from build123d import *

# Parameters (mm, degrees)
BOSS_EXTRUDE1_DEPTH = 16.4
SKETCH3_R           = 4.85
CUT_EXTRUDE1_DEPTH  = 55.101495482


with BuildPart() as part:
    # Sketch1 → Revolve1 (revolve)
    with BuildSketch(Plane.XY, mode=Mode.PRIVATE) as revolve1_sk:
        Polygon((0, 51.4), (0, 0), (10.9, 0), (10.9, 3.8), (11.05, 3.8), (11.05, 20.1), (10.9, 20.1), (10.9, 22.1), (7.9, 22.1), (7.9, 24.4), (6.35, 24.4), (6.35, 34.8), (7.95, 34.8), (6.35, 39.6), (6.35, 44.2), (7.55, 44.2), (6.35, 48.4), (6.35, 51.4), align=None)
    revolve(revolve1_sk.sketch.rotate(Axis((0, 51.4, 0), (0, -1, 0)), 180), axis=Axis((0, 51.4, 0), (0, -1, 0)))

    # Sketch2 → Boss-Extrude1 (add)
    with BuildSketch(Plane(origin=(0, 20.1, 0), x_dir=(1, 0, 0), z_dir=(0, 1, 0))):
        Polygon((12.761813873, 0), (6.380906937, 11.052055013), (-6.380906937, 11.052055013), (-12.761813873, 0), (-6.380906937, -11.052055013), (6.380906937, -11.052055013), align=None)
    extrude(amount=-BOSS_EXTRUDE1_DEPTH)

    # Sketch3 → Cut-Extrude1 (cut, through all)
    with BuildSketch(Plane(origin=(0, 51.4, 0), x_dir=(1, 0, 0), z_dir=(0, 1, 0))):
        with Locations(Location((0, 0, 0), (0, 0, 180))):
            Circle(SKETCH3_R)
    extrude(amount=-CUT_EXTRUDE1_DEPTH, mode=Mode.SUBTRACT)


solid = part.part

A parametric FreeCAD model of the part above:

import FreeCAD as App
import Part
import Sketcher
Q = App.Units.Quantity

doc = App.newDocument("Part")
body = doc.addObject("PartDesign::Body", "Body")

sketch1 = body.newObject("Sketcher::SketchObject", "Sketch")
sketch1.AttachmentSupport = (doc.getObject("XY_Plane"), [""])
sketch1.MapMode = "FlatFace"
sketch1.addGeometry(Part.LineSegment(App.Vector(0, 51.4, 0), App.Vector(0, 0, 0)), False)
sketch1.addGeometry(Part.LineSegment(App.Vector(0, 0, 0), App.Vector(10.9, 0, 0)), False)
sketch1.addGeometry(Part.LineSegment(App.Vector(10.9, 0, 0), App.Vector(10.9, 3.8, 0)), False)
sketch1.addGeometry(Part.LineSegment(App.Vector(10.9, 3.8, 0), App.Vector(11.05, 3.8, 0)), False)
sketch1.addGeometry(Part.LineSegment(App.Vector(11.05, 3.8, 0), App.Vector(11.05, 20.1, 0)), False)
sketch1.addGeometry(Part.LineSegment(App.Vector(11.05, 20.1, 0), App.Vector(10.9, 20.1, 0)), False)
sketch1.addGeometry(Part.LineSegment(App.Vector(10.9, 20.1, 0), App.Vector(10.9, 22.1, 0)), False)
sketch1.addGeometry(Part.LineSegment(App.Vector(10.9, 22.1, 0), App.Vector(7.9, 22.1, 0)), False)
sketch1.addGeometry(Part.LineSegment(App.Vector(7.9, 22.1, 0), App.Vector(7.9, 24.4, 0)), False)
sketch1.addGeometry(Part.LineSegment(App.Vector(7.9, 24.4, 0), App.Vector(6.35, 24.4, 0)), False)
sketch1.addGeometry(Part.LineSegment(App.Vector(6.35, 24.4, 0), App.Vector(6.35, 34.8, 0)), False)
sketch1.addGeometry(Part.LineSegment(App.Vector(6.35, 34.8, 0), App.Vector(7.95, 34.8, 0)), False)
sketch1.addGeometry(Part.LineSegment(App.Vector(7.95, 34.8, 0), App.Vector(6.35, 39.6, 0)), False)
sketch1.addGeometry(Part.LineSegment(App.Vector(6.35, 39.6, 0), App.Vector(6.35, 44.2, 0)), False)
sketch1.addGeometry(Part.LineSegment(App.Vector(6.35, 44.2, 0), App.Vector(7.55, 44.2, 0)), False)
sketch1.addGeometry(Part.LineSegment(App.Vector(7.55, 44.2, 0), App.Vector(6.35, 48.4, 0)), False)
sketch1.addGeometry(Part.LineSegment(App.Vector(6.35, 48.4, 0), App.Vector(6.35, 51.4, 0)), False)
sketch1.addGeometry(Part.LineSegment(App.Vector(6.35, 51.4, 0), App.Vector(0, 51.4, 0)), False)
sketch1.addConstraint(Sketcher.Constraint("Coincident", 0, 2, 1, 1))
sketch1.addConstraint(Sketcher.Constraint("Coincident", 1, 2, 2, 1))
sketch1.addConstraint(Sketcher.Constraint("Coincident", 2, 2, 3, 1))
sketch1.addConstraint(Sketcher.Constraint("Coincident", 3, 2, 4, 1))
sketch1.addConstraint(Sketcher.Constraint("Coincident", 4, 2, 5, 1))
sketch1.addConstraint(Sketcher.Constraint("Coincident", 5, 2, 6, 1))
sketch1.addConstraint(Sketcher.Constraint("Coincident", 6, 2, 7, 1))
sketch1.addConstraint(Sketcher.Constraint("Coincident", 7, 2, 8, 1))
sketch1.addConstraint(Sketcher.Constraint("Coincident", 8, 2, 9, 1))
sketch1.addConstraint(Sketcher.Constraint("Coincident", 9, 2, 10, 1))
sketch1.addConstraint(Sketcher.Constraint("Coincident", 10, 2, 11, 1))
sketch1.addConstraint(Sketcher.Constraint("Coincident", 11, 2, 12, 1))
sketch1.addConstraint(Sketcher.Constraint("Coincident", 12, 2, 13, 1))
sketch1.addConstraint(Sketcher.Constraint("Coincident", 13, 2, 14, 1))
sketch1.addConstraint(Sketcher.Constraint("Coincident", 14, 2, 15, 1))
sketch1.addConstraint(Sketcher.Constraint("Coincident", 15, 2, 16, 1))
sketch1.addConstraint(Sketcher.Constraint("Coincident", 16, 2, 17, 1))
sketch1.addConstraint(Sketcher.Constraint("Coincident", 17, 2, 0, 1))
sketch1.addConstraint(Sketcher.Constraint("Vertical", 0))
sketch1.addConstraint(Sketcher.Constraint("Horizontal", 1))
sketch1.addConstraint(Sketcher.Constraint("Vertical", 2))
sketch1.addConstraint(Sketcher.Constraint("Horizontal", 3))
sketch1.addConstraint(Sketcher.Constraint("Vertical", 4))
sketch1.addConstraint(Sketcher.Constraint("Horizontal", 5))
sketch1.addConstraint(Sketcher.Constraint("Vertical", 6))
sketch1.addConstraint(Sketcher.Constraint("Horizontal", 7))
sketch1.addConstraint(Sketcher.Constraint("Vertical", 8))
sketch1.addConstraint(Sketcher.Constraint("Horizontal", 9))
sketch1.addConstraint(Sketcher.Constraint("Vertical", 10))
sketch1.addConstraint(Sketcher.Constraint("Horizontal", 11))
sketch1.addConstraint(Sketcher.Constraint("Vertical", 13))
sketch1.addConstraint(Sketcher.Constraint("Horizontal", 14))
sketch1.addConstraint(Sketcher.Constraint("Vertical", 16))
sketch1.addConstraint(Sketcher.Constraint("Horizontal", 17))
sketch1.addConstraint(Sketcher.Constraint("Coincident", 0, 2, -1, 1))
sketch1.addConstraint(Sketcher.Constraint("Vertical", 2, 2, 5, 2))
sketch1.addConstraint(Sketcher.Constraint("Vertical", 10, 2, 12, 2))
sketch1.addConstraint(Sketcher.Constraint("Vertical", 13, 2, 15, 2))
sketch1.addConstraint(Sketcher.Constraint("Equal", 7, 16))
sketch1.addConstraint(Sketcher.Constraint("DistanceX", 7, 2, 7, 1, Q("3 mm")))
sketch1.addConstraint(Sketcher.Constraint("DistanceY", 6, 1, 6, 2, Q("2 mm")))
sketch1.addConstraint(Sketcher.Constraint("DistanceX", 1, 1, 1, 2, Q("10.9 mm")))
sketch1.addConstraint(Sketcher.Constraint("DistanceX", 11, 1, 11, 2, Q("1.6 mm")))
sketch1.addConstraint(Sketcher.Constraint("DistanceX", 14, 1, 14, 2, Q("1.2 mm")))
sketch1.addConstraint(Sketcher.Constraint("DistanceY", 0, 2, 0, 1, Q("51.4 mm")))
sketch1.addConstraint(Sketcher.Constraint("DistanceY", 2, 1, 2, 2, Q("3.8 mm")))
sketch1.addConstraint(Sketcher.Constraint("DistanceY", 4, 1, 4, 2, Q("16.3 mm")))
sketch1.addConstraint(Sketcher.Constraint("DistanceY", 8, 1, 8, 2, Q("2.3 mm")))
sketch1.addConstraint(Sketcher.Constraint("DistanceY", 10, 1, 10, 2, Q("10.4 mm")))
sketch1.addConstraint(Sketcher.Constraint("DistanceY", 13, 1, 13, 2, Q("4.6 mm")))
sketch1.addConstraint(Sketcher.Constraint("DistanceX", 3, 1, 3, 2, Q("0.15 mm")))
sketch1.addConstraint(Sketcher.Constraint("DistanceX", 9, 2, 9, 1, Q("1.55 mm")))
sketch1.addConstraint(Sketcher.Constraint("DistanceY", -1, 1, 12, 2, Q("39.6 mm")))
revolution = body.newObject("PartDesign::Revolution", "Revolution")
revolution.Profile = sketch1
revolution.ReferenceAxis = (sketch1, ["V_Axis"])
revolution.Angle = 360

sketch2 = body.newObject("Sketcher::SketchObject", "Sketch001")
sketch2.AttachmentSupport = (doc.getObject("XZ_Plane"), [""])
sketch2.MapMode = "FlatFace"
sketch2.AttachmentOffset = App.Placement(App.Vector(0, 0, -20.1), App.Rotation())
sketch2.addGeometry(Part.LineSegment(App.Vector(12.761814, 0, 0), App.Vector(6.380907, -11.052055, 0)), False)
sketch2.addGeometry(Part.LineSegment(App.Vector(6.380907, -11.052055, 0), App.Vector(-6.380907, -11.052055, 0)), False)
sketch2.addGeometry(Part.LineSegment(App.Vector(-6.380907, -11.052055, 0), App.Vector(-12.761814, 0, 0)), False)
sketch2.addGeometry(Part.LineSegment(App.Vector(-12.761814, 0, 0), App.Vector(-6.380907, 11.052055, 0)), False)
sketch2.addGeometry(Part.LineSegment(App.Vector(-6.380907, 11.052055, 0), App.Vector(6.380907, 11.052055, 0)), False)
sketch2.addGeometry(Part.LineSegment(App.Vector(6.380907, 11.052055, 0), App.Vector(12.761814, 0, 0)), False)
sketch2.addConstraint(Sketcher.Constraint("Coincident", 0, 2, 1, 1))
sketch2.addConstraint(Sketcher.Constraint("Coincident", 1, 2, 2, 1))
sketch2.addConstraint(Sketcher.Constraint("Coincident", 2, 2, 3, 1))
sketch2.addConstraint(Sketcher.Constraint("Coincident", 3, 2, 4, 1))
sketch2.addConstraint(Sketcher.Constraint("Coincident", 4, 2, 5, 1))
sketch2.addConstraint(Sketcher.Constraint("Coincident", 5, 2, 0, 1))
sketch2.addConstraint(Sketcher.Constraint("Horizontal", 1))
sketch2.addConstraint(Sketcher.Constraint("Horizontal", 4))
sketch2.addConstraint(Sketcher.Constraint("Symmetric", 0, 2, 3, 2, -1, 1))
sketch2.addConstraint(Sketcher.Constraint("Symmetric", 2, 2, 5, 2, -1, 1))
sketch2.addConstraint(Sketcher.Constraint("PointOnObject", 2, 2, -1))
sketch2.addConstraint(Sketcher.Constraint("Parallel", 2, 5))
sketch2.addConstraint(Sketcher.Constraint("Vertical", 1, 2, 3, 2))
sketch2.addConstraint(Sketcher.Constraint("Angle", 0, Q("-120 deg")))
sketch2.addConstraint(Sketcher.Constraint("DistanceX", 1, 2, 1, 1, Q("12.761814 mm")))
sketch2.addConstraint(Sketcher.Constraint("DistanceX", 2, 2, 0, 2, Q("19.142721 mm")))
pad1 = body.newObject("PartDesign::Pad", "Pad")
pad1.Profile = sketch2
pad1.Length = 16.4

sketch3 = body.newObject("Sketcher::SketchObject", "Sketch002")
sketch3.AttachmentSupport = (doc.getObject("XZ_Plane"), [""])
sketch3.MapMode = "FlatFace"
sketch3.AttachmentOffset = App.Placement(App.Vector(0, 0, -51.4), App.Rotation())
sketch3.addGeometry(Part.Circle(App.Vector(0, 0, 0), App.Vector(0, 0, 1), 4.85), False)
sketch3.addConstraint(Sketcher.Constraint("Coincident", 0, 3, -1, 1))
sketch3.addConstraint(Sketcher.Constraint("Diameter", 0, Q("9.7 mm")))
pocket1 = body.newObject("PartDesign::Pocket", "Pocket")
pocket1.Profile = sketch3
pocket1.Type = "ThroughAll"
pocket1.Reversed = True

doc.recompute()
